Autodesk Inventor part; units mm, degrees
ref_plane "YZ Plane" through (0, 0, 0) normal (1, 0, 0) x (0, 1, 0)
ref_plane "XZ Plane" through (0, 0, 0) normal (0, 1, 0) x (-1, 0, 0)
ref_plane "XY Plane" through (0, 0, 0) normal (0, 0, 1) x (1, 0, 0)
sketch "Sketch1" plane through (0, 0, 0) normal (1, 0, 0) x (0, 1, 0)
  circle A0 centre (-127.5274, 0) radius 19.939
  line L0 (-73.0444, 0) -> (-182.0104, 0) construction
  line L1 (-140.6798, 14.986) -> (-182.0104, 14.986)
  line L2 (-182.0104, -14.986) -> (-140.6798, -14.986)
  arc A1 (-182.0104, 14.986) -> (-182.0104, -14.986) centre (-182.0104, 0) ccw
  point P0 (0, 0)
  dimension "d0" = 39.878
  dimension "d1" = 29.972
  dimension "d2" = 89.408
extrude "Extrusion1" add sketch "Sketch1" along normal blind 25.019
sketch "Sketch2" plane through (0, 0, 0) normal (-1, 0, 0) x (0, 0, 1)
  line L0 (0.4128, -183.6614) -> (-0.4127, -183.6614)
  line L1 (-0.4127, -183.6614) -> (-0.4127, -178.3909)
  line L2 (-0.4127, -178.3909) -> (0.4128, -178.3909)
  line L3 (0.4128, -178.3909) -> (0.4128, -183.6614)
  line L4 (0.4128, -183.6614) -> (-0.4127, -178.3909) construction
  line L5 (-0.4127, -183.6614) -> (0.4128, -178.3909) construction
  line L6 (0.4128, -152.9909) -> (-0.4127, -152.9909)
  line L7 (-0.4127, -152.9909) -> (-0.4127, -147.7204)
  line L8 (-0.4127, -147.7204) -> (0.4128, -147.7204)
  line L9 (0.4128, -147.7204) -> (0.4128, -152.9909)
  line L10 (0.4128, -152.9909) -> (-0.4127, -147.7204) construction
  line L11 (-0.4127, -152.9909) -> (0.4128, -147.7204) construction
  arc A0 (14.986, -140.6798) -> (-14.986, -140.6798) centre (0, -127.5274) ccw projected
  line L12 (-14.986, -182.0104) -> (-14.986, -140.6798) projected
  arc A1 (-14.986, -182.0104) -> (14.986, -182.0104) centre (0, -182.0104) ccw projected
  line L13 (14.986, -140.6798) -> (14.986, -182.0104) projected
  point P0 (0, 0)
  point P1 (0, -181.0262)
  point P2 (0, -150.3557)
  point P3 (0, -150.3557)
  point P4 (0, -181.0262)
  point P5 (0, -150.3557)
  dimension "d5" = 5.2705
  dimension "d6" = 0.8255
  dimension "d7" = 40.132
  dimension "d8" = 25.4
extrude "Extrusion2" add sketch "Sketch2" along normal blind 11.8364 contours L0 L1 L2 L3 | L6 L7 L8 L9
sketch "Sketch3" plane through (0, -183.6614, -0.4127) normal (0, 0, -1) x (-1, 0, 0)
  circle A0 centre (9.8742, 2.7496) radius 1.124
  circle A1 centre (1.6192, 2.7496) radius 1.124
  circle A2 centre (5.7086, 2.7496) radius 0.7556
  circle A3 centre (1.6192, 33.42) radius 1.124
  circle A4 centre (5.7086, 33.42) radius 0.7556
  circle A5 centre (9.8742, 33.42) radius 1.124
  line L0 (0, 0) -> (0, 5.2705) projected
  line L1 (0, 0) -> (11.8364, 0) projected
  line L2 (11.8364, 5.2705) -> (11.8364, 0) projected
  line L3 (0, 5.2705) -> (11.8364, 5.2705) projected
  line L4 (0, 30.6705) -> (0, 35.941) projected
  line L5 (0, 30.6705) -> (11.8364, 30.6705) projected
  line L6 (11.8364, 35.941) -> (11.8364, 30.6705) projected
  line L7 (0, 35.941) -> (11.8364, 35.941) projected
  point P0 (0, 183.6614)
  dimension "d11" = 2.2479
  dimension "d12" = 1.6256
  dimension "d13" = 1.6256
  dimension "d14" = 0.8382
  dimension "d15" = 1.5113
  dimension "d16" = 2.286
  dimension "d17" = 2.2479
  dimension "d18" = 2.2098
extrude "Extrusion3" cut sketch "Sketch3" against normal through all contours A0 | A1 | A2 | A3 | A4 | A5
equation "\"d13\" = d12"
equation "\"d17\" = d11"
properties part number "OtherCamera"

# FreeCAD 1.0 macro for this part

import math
import FreeCAD as App
import Part
import Sketcher

V = App.Vector
Q = App.Units.Quantity


def add_polygon(sketch, points):
    """Adds a closed chain of lines whose ends are joined by coincident constraints."""
    first, n = sketch.GeometryCount, len(points)
    for a, b in zip(points, points[1:] + points[:1]):
        sketch.addGeometry(Part.LineSegment(App.Vector(*a, 0), App.Vector(*b, 0)), False)
    for i in range(n):
        sketch.addConstraint(Sketcher.Constraint("Coincident", first + i, 2, first + (i + 1) % n, 1))

doc = App.newDocument("Part")
params = doc.addObject("Spreadsheet::Sheet", "Params")
for row, (alias, value) in enumerate([
    ("sketch1_radius", "0.59 in"),
    ("sketch1_radius2", "0.785 in"),
    ("pad1_length", "0.985 in"),
    ("pad2_length", "0.466 in"),
], start=1):
    params.set(f"A{row}", alias)
    params.set(f"B{row}", "=" + value)
    params.setAlias(f"B{row}", alias)

body = doc.addObject("PartDesign::Body", "Body")

# Sketch on YZ plane
sketch1 = doc.addObject("Sketcher::SketchObject", "Sketch")
body.addObject(sketch1)
sketch1.AttachmentSupport = (doc.YZ_Plane, [""])
sketch1.MapMode = "FlatFace"
sketch1.addGeometry(Part.ArcOfCircle(Part.Circle(V(-127.5274, 0, 0), V(0, 0, 1), 19.939), math.radians(-131.271671), math.radians(131.271671)), False)
sketch1.addGeometry(Part.LineSegment(V(-140.6798, 14.986, 0), V(-182.0104, 14.986, 0)), False)
sketch1.addGeometry(Part.ArcOfCircle(Part.Circle(V(-182.0104, 0, 0), V(0, 0, 1), 14.986), math.radians(90), math.radians(270)), False)
sketch1.addGeometry(Part.LineSegment(V(-182.0104, -14.986, 0), V(-140.6798, -14.986, 0)), False)
sketch1.addConstraint(Sketcher.Constraint("Coincident", 0, 2, 1, 1))
sketch1.addConstraint(Sketcher.Constraint("Tangent", 1, 2, 2, 1))
sketch1.addConstraint(Sketcher.Constraint("Tangent", 2, 2, 3, 1))
sketch1.addConstraint(Sketcher.Constraint("Coincident", 3, 2, 0, 1))
sketch1.addConstraint(Sketcher.Constraint("Horizontal", 1))
sketch1.addConstraint(Sketcher.Constraint("Horizontal", 3))
sketch1.addConstraint(Sketcher.Constraint("Symmetric", 0, 2, 3, 2, -1))
sketch1.addConstraint(Sketcher.Constraint("Radius", 2, Q("0.59 in")))
sketch1.addConstraint(Sketcher.Constraint("Radius", 0, Q("0.785 in")))
sketch1.addConstraint(Sketcher.Constraint("DistanceX", 1, 2, 1, 1, Q("1.6272 in")))
sketch1.addConstraint(Sketcher.Constraint("DistanceX", 0, 3, -1, 1, 127.5274))
sketch1.setExpression("Constraints[7]", "Params.sketch1_radius")
sketch1.setExpression("Constraints[8]", "Params.sketch1_radius2")
pad1 = doc.addObject("PartDesign::Pad", "Pad")
body.addObject(pad1)
pad1.Profile = sketch1
pad1.setExpression("Length", "Params.pad1_length")

# Sketch on YZ plane
sketch2 = doc.addObject("Sketcher::SketchObject", "Sketch001")
body.addObject(sketch2)
sketch2.AttachmentSupport = (doc.YZ_Plane, [""])
sketch2.MapMode = "FlatFace"
add_polygon(sketch2, [(-183.6614, -0.4127), (-183.6614, 0.4128), (-178.3909, 0.4128), (-178.3909, -0.4127)])  # lines 0-3
add_polygon(sketch2, [(-152.9909, -0.4127), (-152.9909, 0.4128), (-147.7204, 0.4128), (-147.7204, -0.4127)])  # lines 4-7
sketch2.addConstraint(Sketcher.Constraint("Vertical", 0))
sketch2.addConstraint(Sketcher.Constraint("Horizontal", 1))
sketch2.addConstraint(Sketcher.Constraint("Vertical", 2))
sketch2.addConstraint(Sketcher.Constraint("Horizontal", 3))
sketch2.addConstraint(Sketcher.Constraint("Vertical", 4))
sketch2.addConstraint(Sketcher.Constraint("Horizontal", 5))
sketch2.addConstraint(Sketcher.Constraint("Vertical", 6))
sketch2.addConstraint(Sketcher.Constraint("Horizontal", 7))
sketch2.addConstraint(Sketcher.Constraint("Horizontal", 1, 2, 4, 2))
sketch2.addConstraint(Sketcher.Constraint("Horizontal", 3, 2, 6, 2))
sketch2.addConstraint(Sketcher.Constraint("Equal", 3, 5))
sketch2.addConstraint(Sketcher.Constraint("DistanceX", 1, 2, 4, 2, Q("1 in")))
sketch2.addConstraint(Sketcher.Constraint("DistanceX", 1, 1, 1, 2, Q("0.2075 in")))
sketch2.addConstraint(Sketcher.Constraint("DistanceY", 0, 1, 0, 2, Q("0.0325 in")))
sketch2.addConstraint(Sketcher.Constraint("DistanceX", 0, 2, -1, 1, 183.6614))
sketch2.addConstraint(Sketcher.Constraint("DistanceY", -1, 1, 0, 2, 0.4128))
pad2 = doc.addObject("PartDesign::Pad", "Pad001")
body.addObject(pad2)
pad2.Profile = sketch2
pad2.setExpression("Length", "Params.pad2_length")
pad2.Reversed = True

# Sketch on XY plane
sketch3 = doc.addObject("Sketcher::SketchObject", "Sketch002")
body.addObject(sketch3)
sketch3.AttachmentSupport = (doc.XY_Plane, [""])
sketch3.MapMode = "FlatFace"
sketch3.AttachmentOffset = App.Placement(V(0, 0, -0.4127), App.Rotation())
sketch3.addGeometry(Part.Circle(V(-9.8742, -180.9118, 0), V(0, 0, 1), 1.124), False)
sketch3.addGeometry(Part.Circle(V(-1.6192, -180.9118, 0), V(0, 0, 1), 1.124), False)
sketch3.addGeometry(Part.Circle(V(-5.7086, -180.9118, 0), V(0, 0, 1), 0.7556), False)
sketch3.addGeometry(Part.Circle(V(-1.6192, -150.2414, 0), V(0, 0, 1), 1.124), False)
sketch3.addGeometry(Part.Circle(V(-5.7086, -150.2414, 0), V(0, 0, 1), 0.7556), False)
sketch3.addGeometry(Part.Circle(V(-9.8742, -150.2414, 0), V(0, 0, 1), 1.124), False)
sketch3.addConstraint(Sketcher.Constraint("Equal", 0, 1))
sketch3.addConstraint(Sketcher.Constraint("Equal", 1, 3))
sketch3.addConstraint(Sketcher.Constraint("Equal", 2, 4))
sketch3.addConstraint(Sketcher.Constraint("Equal", 3, 5))
sketch3.addConstraint(Sketcher.Constraint("Horizontal", 0, 3, 1, 3))
sketch3.addConstraint(Sketcher.Constraint("Horizontal", 1, 3, 2, 3))
sketch3.addConstraint(Sketcher.Constraint("Horizontal", 3, 3, 4, 3))
sketch3.addConstraint(Sketcher.Constraint("Horizontal", 4, 3, 5, 3))
sketch3.addConstraint(Sketcher.Constraint("Vertical", 1, 3, 3, 3))
sketch3.addConstraint(Sketcher.Constraint("Vertical", 2, 3, 4, 3))
sketch3.addConstraint(Sketcher.Constraint("Vertical", 0, 3, 5, 3))
sketch3.addConstraint(Sketcher.Constraint("Diameter", 0, Q("0.0885 in")))
sketch3.addConstraint(Sketcher.Constraint("Diameter", 2, Q("0.0595 in")))
sketch3.addConstraint(Sketcher.Constraint("DistanceX", 0, 3, 1, 3, Q("0.325 in")))
sketch3.addConstraint(Sketcher.Constraint("DistanceX", 2, 3, 1, 3, Q("0.161 in")))
sketch3.addConstraint(Sketcher.Constraint("DistanceY", 0, 3, -1, 1, Q("7.1225 in")))
sketch3.addConstraint(Sketcher.Constraint("DistanceY", 1, 3, 3, 3, Q("1.2075 in")))
sketch3.addConstraint(Sketcher.Constraint("DistanceX", 0, 3, -1, 1, 9.8742))
pocket1 = doc.addObject("PartDesign::Pocket", "Pocket")
body.addObject(pocket1)
pocket1.Profile = sketch3
pocket1.Type = "ThroughAll"
pocket1.Reversed = True

doc.recompute()
